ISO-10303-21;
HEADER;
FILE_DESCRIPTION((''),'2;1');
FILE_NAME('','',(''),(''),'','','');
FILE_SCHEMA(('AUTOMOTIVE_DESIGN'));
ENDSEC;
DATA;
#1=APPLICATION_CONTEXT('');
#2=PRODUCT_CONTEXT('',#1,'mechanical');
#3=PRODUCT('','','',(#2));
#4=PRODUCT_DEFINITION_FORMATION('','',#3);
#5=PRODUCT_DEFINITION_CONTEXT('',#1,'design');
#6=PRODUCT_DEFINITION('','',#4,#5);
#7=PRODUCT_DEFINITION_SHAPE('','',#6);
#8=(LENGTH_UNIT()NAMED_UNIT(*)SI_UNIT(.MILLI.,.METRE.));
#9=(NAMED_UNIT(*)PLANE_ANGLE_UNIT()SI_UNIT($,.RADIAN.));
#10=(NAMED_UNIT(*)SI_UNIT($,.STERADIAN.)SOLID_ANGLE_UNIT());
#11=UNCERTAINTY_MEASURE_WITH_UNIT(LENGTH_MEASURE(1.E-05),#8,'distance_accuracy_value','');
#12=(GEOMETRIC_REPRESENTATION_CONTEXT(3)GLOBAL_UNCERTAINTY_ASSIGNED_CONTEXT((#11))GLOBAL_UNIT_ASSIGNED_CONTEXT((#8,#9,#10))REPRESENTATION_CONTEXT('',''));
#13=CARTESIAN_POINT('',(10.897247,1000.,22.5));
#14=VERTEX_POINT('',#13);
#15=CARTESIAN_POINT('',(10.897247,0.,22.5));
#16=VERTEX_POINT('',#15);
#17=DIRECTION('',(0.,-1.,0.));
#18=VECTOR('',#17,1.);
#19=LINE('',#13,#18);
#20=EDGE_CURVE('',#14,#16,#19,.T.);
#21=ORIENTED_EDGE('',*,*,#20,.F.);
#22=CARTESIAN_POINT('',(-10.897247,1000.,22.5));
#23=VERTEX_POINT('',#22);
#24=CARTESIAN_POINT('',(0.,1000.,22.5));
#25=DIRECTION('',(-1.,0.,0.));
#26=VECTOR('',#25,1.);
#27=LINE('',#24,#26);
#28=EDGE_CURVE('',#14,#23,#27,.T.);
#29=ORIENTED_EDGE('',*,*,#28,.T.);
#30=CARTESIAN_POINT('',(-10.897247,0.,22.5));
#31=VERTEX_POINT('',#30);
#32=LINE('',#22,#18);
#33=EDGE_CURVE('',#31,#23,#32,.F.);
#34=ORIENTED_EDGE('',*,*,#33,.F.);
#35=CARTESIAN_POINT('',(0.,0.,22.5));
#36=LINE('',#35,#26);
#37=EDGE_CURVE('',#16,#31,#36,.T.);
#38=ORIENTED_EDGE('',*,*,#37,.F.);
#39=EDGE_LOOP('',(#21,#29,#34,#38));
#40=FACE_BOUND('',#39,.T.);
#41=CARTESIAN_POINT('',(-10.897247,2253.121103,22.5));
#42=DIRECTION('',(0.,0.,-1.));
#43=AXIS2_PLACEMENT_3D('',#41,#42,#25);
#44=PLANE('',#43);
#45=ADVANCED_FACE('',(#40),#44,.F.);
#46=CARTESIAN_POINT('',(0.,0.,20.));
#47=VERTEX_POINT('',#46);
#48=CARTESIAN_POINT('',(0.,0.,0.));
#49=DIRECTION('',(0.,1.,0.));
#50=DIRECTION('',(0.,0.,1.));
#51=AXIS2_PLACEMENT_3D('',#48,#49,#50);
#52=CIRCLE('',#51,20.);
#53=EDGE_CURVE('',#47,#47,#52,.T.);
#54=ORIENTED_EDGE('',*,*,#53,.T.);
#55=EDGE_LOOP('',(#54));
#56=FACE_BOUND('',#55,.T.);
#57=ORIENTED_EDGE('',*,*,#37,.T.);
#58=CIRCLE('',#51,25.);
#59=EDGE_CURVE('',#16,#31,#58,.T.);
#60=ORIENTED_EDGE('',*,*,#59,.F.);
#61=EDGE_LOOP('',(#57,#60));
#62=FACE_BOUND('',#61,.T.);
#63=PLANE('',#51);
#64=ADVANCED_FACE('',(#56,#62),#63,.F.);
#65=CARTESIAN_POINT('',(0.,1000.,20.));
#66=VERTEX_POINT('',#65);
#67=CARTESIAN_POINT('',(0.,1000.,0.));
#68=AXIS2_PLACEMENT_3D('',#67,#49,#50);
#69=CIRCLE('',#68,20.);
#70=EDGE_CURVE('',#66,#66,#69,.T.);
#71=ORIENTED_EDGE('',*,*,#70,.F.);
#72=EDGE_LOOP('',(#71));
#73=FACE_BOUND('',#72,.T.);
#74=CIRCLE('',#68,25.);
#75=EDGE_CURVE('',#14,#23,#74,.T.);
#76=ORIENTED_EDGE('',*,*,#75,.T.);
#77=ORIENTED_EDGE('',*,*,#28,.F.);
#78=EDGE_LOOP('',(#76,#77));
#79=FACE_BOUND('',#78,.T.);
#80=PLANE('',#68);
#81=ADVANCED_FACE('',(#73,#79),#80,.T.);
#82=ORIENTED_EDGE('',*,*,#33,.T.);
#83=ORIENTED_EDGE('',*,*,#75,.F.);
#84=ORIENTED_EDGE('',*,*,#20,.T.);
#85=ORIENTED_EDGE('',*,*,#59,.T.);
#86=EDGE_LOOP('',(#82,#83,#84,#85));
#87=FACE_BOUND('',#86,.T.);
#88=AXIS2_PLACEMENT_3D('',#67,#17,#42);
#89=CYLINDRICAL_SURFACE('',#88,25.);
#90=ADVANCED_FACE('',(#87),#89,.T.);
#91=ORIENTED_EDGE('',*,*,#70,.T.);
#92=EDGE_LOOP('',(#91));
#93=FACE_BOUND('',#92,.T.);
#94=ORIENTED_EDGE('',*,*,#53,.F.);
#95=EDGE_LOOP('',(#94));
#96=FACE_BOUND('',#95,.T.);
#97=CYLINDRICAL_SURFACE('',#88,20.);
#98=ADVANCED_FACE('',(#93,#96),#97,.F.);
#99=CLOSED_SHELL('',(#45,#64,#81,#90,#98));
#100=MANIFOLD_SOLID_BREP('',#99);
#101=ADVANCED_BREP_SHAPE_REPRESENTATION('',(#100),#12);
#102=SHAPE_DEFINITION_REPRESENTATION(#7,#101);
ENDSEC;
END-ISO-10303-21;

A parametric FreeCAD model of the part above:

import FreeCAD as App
import Part
import Sketcher

doc = App.newDocument("Part")
body = doc.addObject("PartDesign::Body", "Body")

# Sketch on XZ plane
sketch1 = doc.addObject("Sketcher::SketchObject", "Sketch")
body.addObject(sketch1)
sketch1.AttachmentSupport = (doc.XZ_Plane, [""])
sketch1.MapMode = "FlatFace"
sketch1.addGeometry([
    Part.Circle(App.Vector(0, 0, 0), App.Vector(0, 0, 1), 25),
    Part.Circle(App.Vector(0, 0, 0), App.Vector(0, 0, 1), 20),
], False)
sketch1.addConstraint([
    Sketcher.Constraint("Coincident", 0, 3, -1, 1),
    Sketcher.Constraint("Coincident", 1, 3, -1, 1),
    Sketcher.Constraint("Diameter", 0, 50.0),
    Sketcher.Constraint("Diameter", 1, 40.0),
])
pad1 = doc.addObject("PartDesign::Pad", "Pad")
body.addObject(pad1)
pad1.Profile = sketch1
pad1.Length = 1000
pad1.Reversed = True

# Sketch on XZ plane
sketch2 = doc.addObject("Sketcher::SketchObject", "Sketch001")
body.addObject(sketch2)
sketch2.AttachmentSupport = (doc.XZ_Plane, [""])
sketch2.MapMode = "FlatFace"
sketch2.AttachmentOffset = App.Placement(App.Vector(0, 0, -1000), App.Rotation())
sketch2.addGeometry([
    Part.LineSegment(App.Vector(140, 22, 0), App.Vector(-140, 22, 0)),
    Part.LineSegment(App.Vector(-140, 22, 0), App.Vector(-140, 281, 0)),
    Part.LineSegment(App.Vector(-140, 281, 0), App.Vector(140, 281, 0)),
    Part.LineSegment(App.Vector(140, 281, 0), App.Vector(140, 22, 0)),
], False)
sketch2.addConstraint([
    Sketcher.Constraint("Coincident", 0, 2, 1, 1),
    Sketcher.Constraint("Coincident", 1, 2, 2, 1),
    Sketcher.Constraint("Coincident", 2, 2, 3, 1),
    Sketcher.Constraint("Coincident", 3, 2, 0, 1),
    Sketcher.Constraint("Horizontal", 0),
    Sketcher.Constraint("Vertical", 1),
    Sketcher.Constraint("Horizontal", 2),
    Sketcher.Constraint("Vertical", 3),
    Sketcher.Constraint("DistanceY", -1, 1, 0, 2, 22.5),
    Sketcher.Constraint("DistanceX", 0, 2, 0, 1, 279.949482),
    Sketcher.Constraint("DistanceY", 1, 1, 1, 2, 258.154987),
    Sketcher.Constraint("DistanceX", 0, 2, -1, 1, 139.974741),
])
pocket1 = doc.addObject("PartDesign::Pocket", "Pocket")
body.addObject(pocket1)
pocket1.Profile = sketch2
pocket1.Type = "ThroughAll"
pocket1.Midplane = True

doc.recompute()
